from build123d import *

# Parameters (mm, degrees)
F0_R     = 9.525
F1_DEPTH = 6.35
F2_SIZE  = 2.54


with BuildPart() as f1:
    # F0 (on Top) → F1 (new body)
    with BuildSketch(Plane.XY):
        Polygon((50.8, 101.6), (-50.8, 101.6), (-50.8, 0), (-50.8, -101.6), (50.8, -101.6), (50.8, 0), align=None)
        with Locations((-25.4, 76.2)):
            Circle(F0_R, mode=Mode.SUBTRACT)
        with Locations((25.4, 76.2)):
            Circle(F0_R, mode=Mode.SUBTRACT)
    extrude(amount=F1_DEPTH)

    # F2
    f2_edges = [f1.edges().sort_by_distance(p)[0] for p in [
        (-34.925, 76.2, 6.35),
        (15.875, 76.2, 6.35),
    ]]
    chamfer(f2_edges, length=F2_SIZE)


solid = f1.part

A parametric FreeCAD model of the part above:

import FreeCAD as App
import Part
import Sketcher
from FreeCAD import Vector
Q = App.Units.Quantity


def edges_at(feature, points):
    """Names of the edges that pass closest to the given points."""
    edges = feature.Shape.Edges
    near = lambda p: min(range(len(edges)), key=lambda i: edges[i].distToShape(Part.Vertex(*p))[0])
    return sorted({f"Edge{near(p) + 1}" for p in points})

doc = App.newDocument("Part")
body = doc.addObject("PartDesign::Body", "Body")

# Sketch on XY plane
sketch1 = body.newObject("Sketcher::SketchObject", "Sketch")
sketch1.AttachmentSupport = (doc.getObject("XY_Plane"), [""])
sketch1.MapMode = "FlatFace"
sketch1.addGeometry([
    Part.LineSegment(Vector(50.8, 101.6, 0), Vector(-50.8, 101.6, 0)),  # 0
    Part.LineSegment(Vector(-50.8, 101.6, 0), Vector(-50.8, -101.6, 0)),  # 1
    Part.LineSegment(Vector(-50.8, -101.6, 0), Vector(50.8, -101.6, 0)),  # 2
    Part.LineSegment(Vector(50.8, -101.6, 0), Vector(50.8, 101.6, 0)),  # 3
    Part.Circle(Vector(-25.4, 76.2, 0), Vector(0, 0, 1), 9.525),  # 4
    Part.Circle(Vector(25.4, 76.2, 0), Vector(0, 0, 1), 9.525),  # 5
], False)
sketch1.addConstraint([
    Sketcher.Constraint("Coincident", 0, 2, 1, 1),
    Sketcher.Constraint("Coincident", 1, 2, 2, 1),
    Sketcher.Constraint("Coincident", 2, 2, 3, 1),
    Sketcher.Constraint("Coincident", 3, 2, 0, 1),
    Sketcher.Constraint("Horizontal", 0),
    Sketcher.Constraint("Vertical", 1),
    Sketcher.Constraint("Horizontal", 2),
    Sketcher.Constraint("Vertical", 3),
    Sketcher.Constraint("Equal", 4, 5),
    Sketcher.Constraint("Symmetric", 0, 2, 2, 2, -1, 1),
    Sketcher.Constraint("Symmetric", 4, 3, 5, 3, -2),
    Sketcher.Constraint("Diameter", 4, Q("0.75 in")),
    Sketcher.Constraint("DistanceX", 0, 2, 0, 1, Q("4 in")),
    Sketcher.Constraint("DistanceY", 1, 2, 1, 1, Q("8 in")),
    Sketcher.Constraint("DistanceX", 4, 3, -1, 1, Q("1 in")),
    Sketcher.Constraint("DistanceY", -1, 1, 4, 3, Q("3 in")),
])
pad1 = body.newObject("PartDesign::Pad", "Pad")
pad1.Profile = sketch1
pad1.Length = Q("0.25 in")
doc.recompute()

chamfer = body.newObject("PartDesign::Chamfer", "Chamfer")
chamfer.Base = (pad1, edges_at(pad1, [(-34.925, 76.2, 6.35), (15.875, 76.2, 6.35)]))
chamfer.Size = Q("0.1 in")

doc.recompute()
